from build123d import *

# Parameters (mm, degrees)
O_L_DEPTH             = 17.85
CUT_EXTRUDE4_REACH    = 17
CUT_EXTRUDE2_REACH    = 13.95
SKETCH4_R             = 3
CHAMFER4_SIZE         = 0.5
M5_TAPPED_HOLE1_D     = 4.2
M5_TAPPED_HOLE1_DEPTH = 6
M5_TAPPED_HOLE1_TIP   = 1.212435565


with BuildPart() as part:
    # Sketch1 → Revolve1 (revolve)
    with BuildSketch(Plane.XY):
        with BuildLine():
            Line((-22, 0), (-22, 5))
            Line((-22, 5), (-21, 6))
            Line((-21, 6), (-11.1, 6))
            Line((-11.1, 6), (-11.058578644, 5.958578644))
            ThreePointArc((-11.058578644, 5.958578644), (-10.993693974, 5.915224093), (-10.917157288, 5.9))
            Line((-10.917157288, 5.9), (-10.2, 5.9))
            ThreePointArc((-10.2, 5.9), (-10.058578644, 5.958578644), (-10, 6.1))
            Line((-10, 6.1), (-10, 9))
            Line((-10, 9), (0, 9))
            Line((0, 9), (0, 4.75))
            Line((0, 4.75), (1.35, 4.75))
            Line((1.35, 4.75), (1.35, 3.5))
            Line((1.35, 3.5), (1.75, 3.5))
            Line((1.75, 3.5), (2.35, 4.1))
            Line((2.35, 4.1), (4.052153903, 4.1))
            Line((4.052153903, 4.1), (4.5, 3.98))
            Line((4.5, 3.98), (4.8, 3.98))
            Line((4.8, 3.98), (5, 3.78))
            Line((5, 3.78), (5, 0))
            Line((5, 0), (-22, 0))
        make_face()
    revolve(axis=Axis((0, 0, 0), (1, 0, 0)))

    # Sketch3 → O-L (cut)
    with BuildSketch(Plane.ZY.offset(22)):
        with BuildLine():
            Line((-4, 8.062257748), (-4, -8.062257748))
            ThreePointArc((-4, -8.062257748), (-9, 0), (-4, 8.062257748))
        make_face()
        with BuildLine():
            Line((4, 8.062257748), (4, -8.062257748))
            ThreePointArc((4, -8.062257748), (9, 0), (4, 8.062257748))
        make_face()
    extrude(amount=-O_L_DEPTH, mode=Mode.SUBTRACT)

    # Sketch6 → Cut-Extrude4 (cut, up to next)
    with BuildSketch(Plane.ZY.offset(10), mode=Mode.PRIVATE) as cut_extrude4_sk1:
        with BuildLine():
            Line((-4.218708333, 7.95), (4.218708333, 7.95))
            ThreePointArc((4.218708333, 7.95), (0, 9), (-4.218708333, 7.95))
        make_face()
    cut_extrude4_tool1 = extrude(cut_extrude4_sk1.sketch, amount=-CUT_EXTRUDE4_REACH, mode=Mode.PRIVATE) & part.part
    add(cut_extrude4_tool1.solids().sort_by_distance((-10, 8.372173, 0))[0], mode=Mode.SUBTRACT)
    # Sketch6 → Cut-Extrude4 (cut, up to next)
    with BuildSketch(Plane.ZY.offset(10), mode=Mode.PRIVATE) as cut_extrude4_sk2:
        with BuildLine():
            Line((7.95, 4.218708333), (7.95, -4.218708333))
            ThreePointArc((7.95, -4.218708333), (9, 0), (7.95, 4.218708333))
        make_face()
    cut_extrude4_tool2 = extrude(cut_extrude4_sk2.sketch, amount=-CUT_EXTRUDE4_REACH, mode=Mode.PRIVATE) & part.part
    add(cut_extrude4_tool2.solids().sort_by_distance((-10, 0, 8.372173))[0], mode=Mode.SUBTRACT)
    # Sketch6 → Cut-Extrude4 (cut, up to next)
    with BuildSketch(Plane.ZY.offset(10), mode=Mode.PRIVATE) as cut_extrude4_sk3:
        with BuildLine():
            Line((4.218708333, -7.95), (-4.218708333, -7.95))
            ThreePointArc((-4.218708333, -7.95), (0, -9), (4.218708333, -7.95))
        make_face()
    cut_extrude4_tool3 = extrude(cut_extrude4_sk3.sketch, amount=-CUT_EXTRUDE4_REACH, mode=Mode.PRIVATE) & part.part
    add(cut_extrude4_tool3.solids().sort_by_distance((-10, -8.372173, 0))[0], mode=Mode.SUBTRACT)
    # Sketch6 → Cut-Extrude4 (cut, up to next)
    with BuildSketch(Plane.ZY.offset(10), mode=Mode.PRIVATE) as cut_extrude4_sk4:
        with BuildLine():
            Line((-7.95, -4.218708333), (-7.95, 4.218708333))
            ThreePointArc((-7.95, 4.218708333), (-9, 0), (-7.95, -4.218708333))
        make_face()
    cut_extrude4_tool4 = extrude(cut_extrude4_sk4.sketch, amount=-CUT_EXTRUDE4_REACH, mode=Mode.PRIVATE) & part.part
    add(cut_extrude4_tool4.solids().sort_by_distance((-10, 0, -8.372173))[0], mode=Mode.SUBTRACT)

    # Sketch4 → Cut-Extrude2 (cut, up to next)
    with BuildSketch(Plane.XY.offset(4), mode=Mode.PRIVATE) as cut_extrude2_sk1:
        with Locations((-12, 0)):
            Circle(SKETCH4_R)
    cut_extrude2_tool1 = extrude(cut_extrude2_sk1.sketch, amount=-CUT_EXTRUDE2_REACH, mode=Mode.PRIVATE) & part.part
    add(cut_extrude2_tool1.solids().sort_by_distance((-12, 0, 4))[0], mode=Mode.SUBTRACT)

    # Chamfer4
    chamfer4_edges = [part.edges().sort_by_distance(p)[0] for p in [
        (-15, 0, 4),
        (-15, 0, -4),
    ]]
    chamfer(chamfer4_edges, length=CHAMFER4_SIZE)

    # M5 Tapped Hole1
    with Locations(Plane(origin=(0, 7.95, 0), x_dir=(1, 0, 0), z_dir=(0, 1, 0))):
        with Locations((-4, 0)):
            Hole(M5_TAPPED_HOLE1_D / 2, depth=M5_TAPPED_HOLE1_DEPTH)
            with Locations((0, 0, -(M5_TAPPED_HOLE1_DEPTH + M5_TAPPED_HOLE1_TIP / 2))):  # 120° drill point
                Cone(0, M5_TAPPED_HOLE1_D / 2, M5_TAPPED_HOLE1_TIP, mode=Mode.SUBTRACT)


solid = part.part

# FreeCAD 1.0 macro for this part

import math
import FreeCAD as App
import Part
import Sketcher

V = App.Vector
Q = App.Units.Quantity


def edges_at(feature, points):
    """Names of the edges that pass closest to the given points."""
    edges = feature.Shape.Edges
    near = lambda p: min(range(len(edges)), key=lambda i: edges[i].distToShape(Part.Vertex(*p))[0])
    return sorted({f"Edge{near(p) + 1}" for p in points})

doc = App.newDocument("Part")
body = doc.addObject("PartDesign::Body", "Body")

# Sketch on XY plane
sketch1 = body.newObject("Sketcher::SketchObject", "Sketch")
sketch1.AttachmentSupport = (doc.getObject("XY_Plane"), [""])
sketch1.MapMode = "FlatFace"
sketch1.addGeometry(Part.LineSegment(V(-22, 5, 0), V(-22, 0, 0)), False)
sketch1.addGeometry(Part.LineSegment(V(-22, 0, 0), V(5, 0, 0)), False)
sketch1.addGeometry(Part.LineSegment(V(5, 0, 0), V(5, 3.78, 0)), False)
sketch1.addGeometry(Part.LineSegment(V(5, 3.78, 0), V(4.8, 3.98, 0)), False)
sketch1.addGeometry(Part.LineSegment(V(4.8, 3.98, 0), V(4.5, 3.98, 0)), False)
sketch1.addGeometry(Part.LineSegment(V(4.5, 3.98, 0), V(4.05, 4.1, 0)), False)
sketch1.addGeometry(Part.LineSegment(V(4.05, 4.1, 0), V(2.35, 4.1, 0)), False)
sketch1.addGeometry(Part.LineSegment(V(2.35, 4.1, 0), V(1.75, 3.5, 0)), False)
sketch1.addGeometry(Part.LineSegment(V(1.75, 3.5, 0), V(1.35, 3.5, 0)), False)
sketch1.addGeometry(Part.LineSegment(V(1.35, 3.5, 0), V(1.35, 4.75, 0)), False)
sketch1.addGeometry(Part.LineSegment(V(1.35, 4.75, 0), V(0, 4.75, 0)), False)
sketch1.addGeometry(Part.LineSegment(V(0, 4.75, 0), V(0, 9, 0)), False)
sketch1.addGeometry(Part.LineSegment(V(0, 9, 0), V(-10, 9, 0)), False)
sketch1.addGeometry(Part.LineSegment(V(-10, 9, 0), V(-10, 6.1, 0)), False)
sketch1.addGeometry(Part.ArcOfCircle(Part.Circle(V(-10.2, 6.1, 0), V(0, 0, 1), 0.2), math.radians(-90), math.radians(0)), False)
sketch1.addGeometry(Part.LineSegment(V(-10.2, 5.9, 0), V(-10.92, 5.9, 0)), False)
sketch1.addGeometry(Part.ArcOfCircle(Part.Circle(V(-10.92, 6.1, 0), V(0, 0, 1), 0.2), math.radians(-135), math.radians(-90)), False)
sketch1.addGeometry(Part.LineSegment(V(-11.06, 5.96, 0), V(-11.1, 6, 0)), False)
sketch1.addGeometry(Part.LineSegment(V(-11.1, 6, 0), V(-21, 6, 0)), False)
sketch1.addGeometry(Part.LineSegment(V(-21, 6, 0), V(-22, 5, 0)), False)
sketch1.addConstraint(Sketcher.Constraint("Coincident", 0, 2, 1, 1))
sketch1.addConstraint(Sketcher.Constraint("Coincident", 1, 2, 2, 1))
sketch1.addConstraint(Sketcher.Constraint("Coincident", 2, 2, 3, 1))
sketch1.addConstraint(Sketcher.Constraint("Coincident", 3, 2, 4, 1))
sketch1.addConstraint(Sketcher.Constraint("Coincident", 4, 2, 5, 1))
sketch1.addConstraint(Sketcher.Constraint("Coincident", 5, 2, 6, 1))
sketch1.addConstraint(Sketcher.Constraint("Coincident", 6, 2, 7, 1))
sketch1.addConstraint(Sketcher.Constraint("Coincident", 7, 2, 8, 1))
sketch1.addConstraint(Sketcher.Constraint("Coincident", 8, 2, 9, 1))
sketch1.addConstraint(Sketcher.Constraint("Coincident", 9, 2, 10, 1))
sketch1.addConstraint(Sketcher.Constraint("Coincident", 10, 2, 11, 1))
sketch1.addConstraint(Sketcher.Constraint("Coincident", 11, 2, 12, 1))
sketch1.addConstraint(Sketcher.Constraint("Coincident", 12, 2, 13, 1))
sketch1.addConstraint(Sketcher.Constraint("Tangent", 13, 2, 14, 2))
sketch1.addConstraint(Sketcher.Constraint("Tangent", 14, 1, 15, 1))
sketch1.addConstraint(Sketcher.Constraint("Tangent", 15, 2, 16, 2))
sketch1.addConstraint(Sketcher.Constraint("Tangent", 16, 1, 17, 1))
sketch1.addConstraint(Sketcher.Constraint("Coincident", 17, 2, 18, 1))
sketch1.addConstraint(Sketcher.Constraint("Coincident", 18, 2, 19, 1))
sketch1.addConstraint(Sketcher.Constraint("Coincident", 19, 2, 0, 1))
sketch1.addConstraint(Sketcher.Constraint("Vertical", 0))
sketch1.addConstraint(Sketcher.Constraint("Horizontal", 1))
sketch1.addConstraint(Sketcher.Constraint("Vertical", 2))
sketch1.addConstraint(Sketcher.Constraint("Horizontal", 4))
sketch1.addConstraint(Sketcher.Constraint("Horizontal", 6))
sketch1.addConstraint(Sketcher.Constraint("Horizontal", 8))
sketch1.addConstraint(Sketcher.Constraint("Vertical", 9))
sketch1.addConstraint(Sketcher.Constraint("Horizontal", 10))
sketch1.addConstraint(Sketcher.Constraint("Vertical", 11))
sketch1.addConstraint(Sketcher.Constraint("Horizontal", 12))
sketch1.addConstraint(Sketcher.Constraint("Vertical", 13))
sketch1.addConstraint(Sketcher.Constraint("Horizontal", 15))
sketch1.addConstraint(Sketcher.Constraint("Horizontal", 18))
sketch1.addConstraint(Sketcher.Constraint("Equal", 14, 16))
sketch1.addConstraint(Sketcher.Constraint("PointOnObject", 0, 2, -1))
sketch1.addConstraint(Sketcher.Constraint("PointOnObject", 10, 2, -2))
sketch1.addConstraint(Sketcher.Constraint("Perpendicular", 3, 7))
sketch1.addConstraint(Sketcher.Constraint("Perpendicular", 7, 17))
sketch1.addConstraint(Sketcher.Constraint("Perpendicular", 17, 19))
sketch1.addConstraint(Sketcher.Constraint("Radius", 14, Q("0.2 mm")))
sketch1.addConstraint(Sketcher.Constraint("DistanceX", 1, 1, 1, 2, Q("27 mm")))
sketch1.addConstraint(Sketcher.Constraint("DistanceX", 12, 2, 12, 1, Q("10 mm")))
sketch1.addConstraint(Sketcher.Constraint("DistanceY", 0, 2, 0, 1, Q("5 mm")))
sketch1.addConstraint(Sketcher.Constraint("Angle", 3, Q("135 deg")))
sketch1.addConstraint(Sketcher.Constraint("Angle", 5, Q("165 deg")))
sketch1.addConstraint(Sketcher.Constraint("DistanceX", 4, 2, 4, 1, Q("0.3 mm")))
sketch1.addConstraint(Sketcher.Constraint("DistanceX", 8, 2, 8, 1, Q("0.4 mm")))
sketch1.addConstraint(Sketcher.Constraint("DistanceX", 18, 2, 18, 1, Q("9.9 mm")))
sketch1.addConstraint(Sketcher.Constraint("DistanceY", 13, 2, 13, 1, Q("2.9 mm")))
sketch1.addConstraint(Sketcher.Constraint("DistanceX", 0, 2, -1, 1, Q("22 mm")))
sketch1.addConstraint(Sketcher.Constraint("DistanceY", -1, 1, 11, 2, Q("9 mm")))
sketch1.addConstraint(Sketcher.Constraint("DistanceY", -1, 1, 17, 2, Q("6 mm")))
sketch1.addConstraint(Sketcher.Constraint("DistanceX", 14, 3, 3, 2, Q("15 mm")))
sketch1.addConstraint(Sketcher.Constraint("DistanceY", 5, 2, 14, 3, Q("2 mm")))
sketch1.addConstraint(Sketcher.Constraint("DistanceX", 8, 2, 6, 2, Q("1 mm")))
sketch1.addConstraint(Sketcher.Constraint("DistanceX", 10, 2, 10, 1, Q("1.35 mm")))
sketch1.addConstraint(Sketcher.Constraint("DistanceY", 2, 1, 2, 2, Q("3.78 mm")))
sketch1.addConstraint(Sketcher.Constraint("DistanceY", 9, 1, 9, 2, Q("1.25 mm")))
revolution = body.newObject("PartDesign::Revolution", "Revolution")
revolution.Profile = sketch1
revolution.ReferenceAxis = (sketch1, ["H_Axis"])
revolution.Angle = 360

# Sketch on YZ plane
sketch2 = body.newObject("Sketcher::SketchObject", "Sketch001")
sketch2.AttachmentSupport = (doc.getObject("YZ_Plane"), [""])
sketch2.MapMode = "FlatFace"
sketch2.AttachmentOffset = App.Placement(V(0, 0, -22), App.Rotation())
sketch2.addGeometry(Part.LineSegment(V(-8, -4, 0), V(8, -4, 0)), False)
sketch2.addGeometry(Part.ArcOfCircle(Part.Circle(V(0, 0, 0), V(0, 0, 1), 9), math.radians(-154), math.radians(-26)), False)
sketch2.addGeometry(Part.LineSegment(V(8, 4, 0), V(-8, 4, 0)), False)
sketch2.addGeometry(Part.ArcOfCircle(Part.Circle(V(0, 0, 0), V(0, 0, 1), 9), math.radians(26), math.radians(154)), False)
sketch2.addConstraint(Sketcher.Constraint("Coincident", 0, 1, 1, 1))
sketch2.addConstraint(Sketcher.Constraint("Coincident", 1, 2, 0, 2))
sketch2.addConstraint(Sketcher.Constraint("Coincident", 2, 1, 3, 1))
sketch2.addConstraint(Sketcher.Constraint("Coincident", 3, 2, 2, 2))
sketch2.addConstraint(Sketcher.Constraint("Horizontal", 0))
sketch2.addConstraint(Sketcher.Constraint("Horizontal", 2))
sketch2.addConstraint(Sketcher.Constraint("Coincident", 1, 3, -1, 1))
sketch2.addConstraint(Sketcher.Constraint("Coincident", 3, 3, -1, 1))
sketch2.addConstraint(Sketcher.Constraint("Equal", 1, 3))
sketch2.addConstraint(Sketcher.Constraint("Vertical", 1, 2, 2, 1))
sketch2.addConstraint(Sketcher.Constraint("Radius", 1, Q("9 mm")))
sketch2.addConstraint(Sketcher.Constraint("DistanceY", 0, 1, -1, 1, Q("4 mm")))
pocket1 = body.newObject("PartDesign::Pocket", "Pocket")
pocket1.Profile = sketch2
pocket1.Length = 17.85
pocket1.Reversed = True

# Sketch on YZ plane
sketch3 = body.newObject("Sketcher::SketchObject", "Sketch002")
sketch3.AttachmentSupport = (doc.getObject("YZ_Plane"), [""])
sketch3.MapMode = "FlatFace"
sketch3.AttachmentOffset = App.Placement(V(0, 0, -10), App.Rotation())
sketch3.addGeometry(Part.LineSegment(V(8, -4, 0), V(8, 4, 0)), False)
sketch3.addGeometry(Part.ArcOfCircle(Part.Circle(V(0, 0, 0), V(0, 0, 1), 9), math.radians(-28), math.radians(28)), False)
sketch3.addConstraint(Sketcher.Constraint("Coincident", 0, 1, 1, 1))
sketch3.addConstraint(Sketcher.Constraint("Coincident", 1, 2, 0, 2))
sketch3.addConstraint(Sketcher.Constraint("Vertical", 0))
sketch3.addConstraint(Sketcher.Constraint("Coincident", 1, 3, -1, 1))
sketch3.addConstraint(Sketcher.Constraint("Radius", 1, Q("9 mm")))
sketch3.addConstraint(Sketcher.Constraint("DistanceX", -1, 1, 0, 1, Q("7.95 mm")))
pocket2 = body.newObject("PartDesign::Pocket", "Pocket001")
pocket2.Profile = sketch3
pocket2.Type = "UpToFirst"
pocket2.Reversed = True

# Sketch on YZ plane
sketch4 = body.newObject("Sketcher::SketchObject", "Sketch003")
sketch4.AttachmentSupport = (doc.getObject("YZ_Plane"), [""])
sketch4.MapMode = "FlatFace"
sketch4.AttachmentOffset = App.Placement(V(0, 0, -10), App.Rotation())
sketch4.addGeometry(Part.LineSegment(V(4, 8, 0), V(-4, 8, 0)), False)
sketch4.addGeometry(Part.ArcOfCircle(Part.Circle(V(0, 0, 0), V(0, 0, 1), 9), math.radians(62), math.radians(118)), False)
sketch4.addConstraint(Sketcher.Constraint("Coincident", 0, 1, 1, 1))
sketch4.addConstraint(Sketcher.Constraint("Coincident", 1, 2, 0, 2))
sketch4.addConstraint(Sketcher.Constraint("Horizontal", 0))
sketch4.addConstraint(Sketcher.Constraint("Coincident", 1, 3, -1, 1))
sketch4.addConstraint(Sketcher.Constraint("Radius", 1, Q("9 mm")))
sketch4.addConstraint(Sketcher.Constraint("DistanceY", -1, 1, 0, 1, Q("7.95 mm")))
pocket3 = body.newObject("PartDesign::Pocket", "Pocket002")
pocket3.Profile = sketch4
pocket3.Length = 10
pocket3.Reversed = True

# Sketch on YZ plane
sketch5 = body.newObject("Sketcher::SketchObject", "Sketch004")
sketch5.AttachmentSupport = (doc.getObject("YZ_Plane"), [""])
sketch5.MapMode = "FlatFace"
sketch5.AttachmentOffset = App.Placement(V(0, 0, -10), App.Rotation())
sketch5.addGeometry(Part.LineSegment(V(-8, 4, 0), V(-8, -4, 0)), False)
sketch5.addGeometry(Part.ArcOfCircle(Part.Circle(V(0, 0, 0), V(0, 0, 1), 9), math.radians(152), math.radians(208)), False)
sketch5.addConstraint(Sketcher.Constraint("Coincident", 0, 1, 1, 1))
sketch5.addConstraint(Sketcher.Constraint("Coincident", 1, 2, 0, 2))
sketch5.addConstraint(Sketcher.Constraint("Vertical", 0))
sketch5.addConstraint(Sketcher.Constraint("Coincident", 1, 3, -1, 1))
sketch5.addConstraint(Sketcher.Constraint("Radius", 1, Q("9 mm")))
sketch5.addConstraint(Sketcher.Constraint("DistanceX", 0, 1, -1, 1, Q("7.95 mm")))
pocket4 = body.newObject("PartDesign::Pocket", "Pocket003")
pocket4.Profile = sketch5
pocket4.Type = "UpToFirst"
pocket4.Reversed = True

# Sketch on YZ plane
sketch6 = body.newObject("Sketcher::SketchObject", "Sketch005")
sketch6.AttachmentSupport = (doc.getObject("YZ_Plane"), [""])
sketch6.MapMode = "FlatFace"
sketch6.AttachmentOffset = App.Placement(V(0, 0, -10), App.Rotation())
sketch6.addGeometry(Part.LineSegment(V(-4, -8, 0), V(4, -8, 0)), False)
sketch6.addGeometry(Part.ArcOfCircle(Part.Circle(V(0, 0, 0), V(0, 0, 1), 9), math.radians(-118), math.radians(-62)), False)
sketch6.addConstraint(Sketcher.Constraint("Coincident", 0, 1, 1, 1))
sketch6.addConstraint(Sketcher.Constraint("Coincident", 1, 2, 0, 2))
sketch6.addConstraint(Sketcher.Constraint("Horizontal", 0))
sketch6.addConstraint(Sketcher.Constraint("Coincident", 1, 3, -1, 1))
sketch6.addConstraint(Sketcher.Constraint("Radius", 1, Q("9 mm")))
sketch6.addConstraint(Sketcher.Constraint("DistanceY", 0, 1, -1, 1, Q("7.95 mm")))
pocket5 = body.newObject("PartDesign::Pocket", "Pocket004")
pocket5.Profile = sketch6
pocket5.Length = 10
pocket5.Reversed = True

# Sketch on XY plane
sketch7 = body.newObject("Sketcher::SketchObject", "Sketch006")
sketch7.AttachmentSupport = (doc.getObject("XY_Plane"), [""])
sketch7.MapMode = "FlatFace"
sketch7.AttachmentOffset = App.Placement(V(0, 0, 4), App.Rotation())
sketch7.addGeometry(Part.Circle(V(-12, 0, 0), V(0, 0, 1), 3), False)
sketch7.addConstraint(Sketcher.Constraint("PointOnObject", 0, 3, -1))
sketch7.addConstraint(Sketcher.Constraint("Diameter", 0, Q("6 mm")))
sketch7.addConstraint(Sketcher.Constraint("DistanceX", 0, 3, -1, 1, Q("12 mm")))
pocket6 = body.newObject("PartDesign::Pocket", "Pocket005")
pocket6.Profile = sketch7
pocket6.Type = "UpToFirst"
doc.recompute()

chamfer = body.newObject("PartDesign::Chamfer", "Chamfer")
chamfer.Base = (pocket6, edges_at(pocket6, [(-15, 0, 4), (-15, 0, -4)]))
chamfer.Size = 0.5

# Sketch on XZ plane
sketch8 = body.newObject("Sketcher::SketchObject", "Sketch007")
sketch8.AttachmentSupport = (doc.getObject("XZ_Plane"), [""])
sketch8.MapMode = "FlatFace"
sketch8.AttachmentOffset = App.Placement(V(0, 0, -7.95), App.Rotation())
sketch8.addGeometry(Part.Circle(V(-4, 0, 0), V(0, 0, 1), 2.1), False)
sketch8.addConstraint(Sketcher.Constraint("PointOnObject", 0, 3, -1))
sketch8.addConstraint(Sketcher.Constraint("Diameter", 0, Q("4.2 mm")))
sketch8.addConstraint(Sketcher.Constraint("DistanceX", 0, 3, -1, 1, Q("4 mm")))
doc.recompute()
hole = body.newObject("PartDesign::Hole", "Hole")
hole.Profile = sketch8
hole.ThreadType = "None"
hole.Diameter = 4.2
hole.DepthType = "Dimension"
hole.Depth = 6
hole.DrillPoint = "Angled"
hole.DrillPointAngle = 120
hole.Reversed = True

doc.recompute()
